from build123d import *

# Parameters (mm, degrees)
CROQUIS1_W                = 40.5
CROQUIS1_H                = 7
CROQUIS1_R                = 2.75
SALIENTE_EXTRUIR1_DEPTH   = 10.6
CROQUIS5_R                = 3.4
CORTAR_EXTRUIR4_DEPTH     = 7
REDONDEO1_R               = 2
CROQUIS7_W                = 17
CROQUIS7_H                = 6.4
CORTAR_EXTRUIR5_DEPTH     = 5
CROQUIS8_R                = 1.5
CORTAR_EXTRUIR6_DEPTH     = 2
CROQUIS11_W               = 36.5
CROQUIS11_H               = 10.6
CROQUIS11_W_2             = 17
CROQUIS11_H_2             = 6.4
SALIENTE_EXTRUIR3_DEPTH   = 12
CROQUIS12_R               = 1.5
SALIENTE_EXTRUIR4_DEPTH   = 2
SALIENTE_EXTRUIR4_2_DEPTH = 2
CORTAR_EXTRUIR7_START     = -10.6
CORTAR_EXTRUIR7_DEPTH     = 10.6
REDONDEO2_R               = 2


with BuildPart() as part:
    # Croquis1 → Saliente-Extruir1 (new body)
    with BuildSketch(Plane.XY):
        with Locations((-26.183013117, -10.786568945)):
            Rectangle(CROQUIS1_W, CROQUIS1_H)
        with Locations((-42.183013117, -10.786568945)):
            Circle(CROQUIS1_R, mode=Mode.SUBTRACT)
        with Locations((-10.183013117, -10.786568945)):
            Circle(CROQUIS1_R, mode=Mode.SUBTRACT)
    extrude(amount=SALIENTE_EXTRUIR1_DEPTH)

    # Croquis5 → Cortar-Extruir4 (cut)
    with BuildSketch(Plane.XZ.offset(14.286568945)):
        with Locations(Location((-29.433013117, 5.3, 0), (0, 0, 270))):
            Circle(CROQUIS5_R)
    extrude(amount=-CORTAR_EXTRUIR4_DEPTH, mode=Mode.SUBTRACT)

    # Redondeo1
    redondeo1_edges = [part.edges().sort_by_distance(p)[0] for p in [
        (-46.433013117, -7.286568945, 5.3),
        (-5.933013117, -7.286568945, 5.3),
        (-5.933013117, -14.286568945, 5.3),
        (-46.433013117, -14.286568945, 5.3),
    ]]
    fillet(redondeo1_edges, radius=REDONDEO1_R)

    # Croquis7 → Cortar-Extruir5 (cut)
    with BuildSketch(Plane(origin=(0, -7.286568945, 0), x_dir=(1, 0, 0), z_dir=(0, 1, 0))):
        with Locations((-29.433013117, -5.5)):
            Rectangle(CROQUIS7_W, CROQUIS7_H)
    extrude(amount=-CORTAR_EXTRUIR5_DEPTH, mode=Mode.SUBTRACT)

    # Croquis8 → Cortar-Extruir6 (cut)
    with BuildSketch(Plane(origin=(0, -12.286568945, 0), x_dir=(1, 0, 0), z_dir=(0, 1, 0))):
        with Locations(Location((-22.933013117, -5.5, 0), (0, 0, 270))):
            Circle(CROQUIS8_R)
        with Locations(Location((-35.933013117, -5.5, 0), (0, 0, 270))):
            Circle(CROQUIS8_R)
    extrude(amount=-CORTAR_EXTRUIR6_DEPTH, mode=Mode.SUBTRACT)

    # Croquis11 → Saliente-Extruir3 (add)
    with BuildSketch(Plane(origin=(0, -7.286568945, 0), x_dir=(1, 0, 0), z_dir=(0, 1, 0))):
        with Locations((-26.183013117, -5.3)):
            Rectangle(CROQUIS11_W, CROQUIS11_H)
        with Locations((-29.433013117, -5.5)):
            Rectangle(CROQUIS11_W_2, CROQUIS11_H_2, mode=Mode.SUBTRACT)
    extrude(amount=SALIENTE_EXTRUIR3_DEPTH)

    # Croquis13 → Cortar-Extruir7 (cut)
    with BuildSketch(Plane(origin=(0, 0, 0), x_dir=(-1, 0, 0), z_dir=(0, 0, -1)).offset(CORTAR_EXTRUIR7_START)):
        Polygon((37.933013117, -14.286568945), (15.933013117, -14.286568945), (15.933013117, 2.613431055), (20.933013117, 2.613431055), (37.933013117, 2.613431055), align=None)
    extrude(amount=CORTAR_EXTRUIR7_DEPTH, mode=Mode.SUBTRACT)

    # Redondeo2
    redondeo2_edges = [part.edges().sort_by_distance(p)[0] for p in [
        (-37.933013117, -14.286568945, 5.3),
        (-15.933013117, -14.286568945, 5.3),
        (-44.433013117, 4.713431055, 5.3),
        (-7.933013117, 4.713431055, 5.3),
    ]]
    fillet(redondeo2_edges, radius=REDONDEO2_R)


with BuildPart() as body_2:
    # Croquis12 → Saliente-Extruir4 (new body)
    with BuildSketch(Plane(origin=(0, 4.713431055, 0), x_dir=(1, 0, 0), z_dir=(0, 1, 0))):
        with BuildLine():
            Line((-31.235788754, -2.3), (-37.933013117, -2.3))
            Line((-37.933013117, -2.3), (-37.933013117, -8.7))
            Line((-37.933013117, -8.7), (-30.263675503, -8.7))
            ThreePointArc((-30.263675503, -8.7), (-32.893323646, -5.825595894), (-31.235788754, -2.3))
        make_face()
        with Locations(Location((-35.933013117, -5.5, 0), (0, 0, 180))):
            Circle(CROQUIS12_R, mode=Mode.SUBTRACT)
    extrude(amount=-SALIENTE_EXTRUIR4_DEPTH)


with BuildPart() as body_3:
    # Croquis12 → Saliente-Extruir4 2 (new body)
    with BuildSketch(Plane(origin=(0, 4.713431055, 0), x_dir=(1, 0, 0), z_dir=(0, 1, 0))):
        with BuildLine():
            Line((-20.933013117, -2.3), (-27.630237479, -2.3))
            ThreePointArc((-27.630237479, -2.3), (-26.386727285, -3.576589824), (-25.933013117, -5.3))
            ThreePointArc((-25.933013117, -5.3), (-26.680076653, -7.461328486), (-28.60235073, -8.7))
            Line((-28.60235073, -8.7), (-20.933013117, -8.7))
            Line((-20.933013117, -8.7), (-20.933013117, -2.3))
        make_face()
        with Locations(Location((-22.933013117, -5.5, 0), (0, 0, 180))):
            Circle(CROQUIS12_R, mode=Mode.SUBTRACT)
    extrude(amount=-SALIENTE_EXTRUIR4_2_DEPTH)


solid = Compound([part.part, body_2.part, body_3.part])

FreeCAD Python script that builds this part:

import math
import FreeCAD as App
import Part
import Sketcher
from FreeCAD import Vector


def edges_at(feature, points):
    """Names of the edges that pass closest to the given points."""
    edges = feature.Shape.Edges
    near = lambda p: min(range(len(edges)), key=lambda i: edges[i].distToShape(Part.Vertex(*p))[0])
    return sorted({f"Edge{near(p) + 1}" for p in points})

doc = App.newDocument("Part")
body = doc.addObject("PartDesign::Body", "Body")

# Sketch on XY plane
sketch1 = body.newObject("Sketcher::SketchObject", "Sketch")
sketch1.AttachmentSupport = (doc.getObject("XY_Plane"), [""])
sketch1.MapMode = "FlatFace"
sketch1.addGeometry(Part.LineSegment(Vector(-46.4, -7.3, 0), Vector(-46.4, -14.3, 0)), False)
sketch1.addGeometry(Part.LineSegment(Vector(-46.4, -14.3, 0), Vector(-5.9, -14.3, 0)), False)
sketch1.addGeometry(Part.LineSegment(Vector(-5.9, -14.3, 0), Vector(-5.9, -7.3, 0)), False)
sketch1.addGeometry(Part.LineSegment(Vector(-5.9, -7.3, 0), Vector(-46.4, -7.3, 0)), False)
sketch1.addGeometry(Part.Circle(Vector(-42.2, -10.8, 0), Vector(0, 0, 1), 2.8), False)
sketch1.addGeometry(Part.Circle(Vector(-10.2, -10.8, 0), Vector(0, 0, 1), 2.8), False)
sketch1.addConstraint(Sketcher.Constraint("Coincident", 0, 2, 1, 1))
sketch1.addConstraint(Sketcher.Constraint("Coincident", 1, 2, 2, 1))
sketch1.addConstraint(Sketcher.Constraint("Coincident", 2, 2, 3, 1))
sketch1.addConstraint(Sketcher.Constraint("Coincident", 3, 2, 0, 1))
sketch1.addConstraint(Sketcher.Constraint("Vertical", 0))
sketch1.addConstraint(Sketcher.Constraint("Horizontal", 1))
sketch1.addConstraint(Sketcher.Constraint("Vertical", 2))
sketch1.addConstraint(Sketcher.Constraint("Horizontal", 3))
sketch1.addConstraint(Sketcher.Constraint("Equal", 4, 5))
sketch1.addConstraint(Sketcher.Constraint("Horizontal", 4, 3, 5, 3))
sketch1.addConstraint(Sketcher.Constraint("Diameter", 4, 5.5))
sketch1.addConstraint(Sketcher.Constraint("DistanceY", 0, 2, 0, 1, 7.0))
sketch1.addConstraint(Sketcher.Constraint("DistanceX", 1, 1, 1, 2, 40.5))
sketch1.addConstraint(Sketcher.Constraint("DistanceX", 4, 3, 5, 3, 32.0))
sketch1.addConstraint(Sketcher.Constraint("DistanceY", 0, 2, 4, 3, 3.5))
sketch1.addConstraint(Sketcher.Constraint("DistanceX", 0, 2, 4, 3, 4.25))
sketch1.addConstraint(Sketcher.Constraint("DistanceY", 4, 3, -1, 1, 10.786569))
sketch1.addConstraint(Sketcher.Constraint("DistanceX", 4, 3, -1, 1, 42.183013))
pad1 = body.newObject("PartDesign::Pad", "Pad")
pad1.Profile = sketch1
pad1.Length = 10.6

# Sketch on XZ plane
sketch2 = body.newObject("Sketcher::SketchObject", "Sketch001")
sketch2.AttachmentSupport = (doc.getObject("XZ_Plane"), [""])
sketch2.MapMode = "FlatFace"
sketch2.AttachmentOffset = App.Placement(Vector(0, 0, 14.286569), App.Rotation())
sketch2.addGeometry(Part.Circle(Vector(-29.4, 5.3, 0), Vector(0, 0, 1), 3.4), False)
sketch2.addConstraint(Sketcher.Constraint("Diameter", 0, 6.8))
sketch2.addConstraint(Sketcher.Constraint("DistanceY", -1, 1, 0, 3, 5.3))
sketch2.addConstraint(Sketcher.Constraint("DistanceX", 0, 3, -1, 1, 29.433013))
pocket1 = body.newObject("PartDesign::Pocket", "Pocket")
pocket1.Profile = sketch2
pocket1.Length = 7
doc.recompute()

fillet = body.newObject("PartDesign::Fillet", "Fillet")
fillet.Base = (pocket1, edges_at(pocket1, [
    (-46.433, -7.287, 5.3),
    (-5.933, -7.287, 5.3),
    (-5.933, -14.287, 5.3),
    (-46.433, -14.287, 5.3),
]))
fillet.Radius = 2

# Sketch on XZ plane
sketch3 = body.newObject("Sketcher::SketchObject", "Sketch002")
sketch3.AttachmentSupport = (doc.getObject("XZ_Plane"), [""])
sketch3.MapMode = "FlatFace"
sketch3.AttachmentOffset = App.Placement(Vector(0, 0, 7.286569), App.Rotation())
sketch3.addGeometry(Part.LineSegment(Vector(-38, 2, 0), Vector(-38, 9, 0)), False)
sketch3.addGeometry(Part.LineSegment(Vector(-38, 9, 0), Vector(-21, 9, 0)), False)
sketch3.addGeometry(Part.LineSegment(Vector(-21, 9, 0), Vector(-21, 2, 0)), False)
sketch3.addGeometry(Part.LineSegment(Vector(-21, 2, 0), Vector(-38, 2, 0)), False)
sketch3.addConstraint(Sketcher.Constraint("Coincident", 0, 2, 1, 1))
sketch3.addConstraint(Sketcher.Constraint("Coincident", 1, 2, 2, 1))
sketch3.addConstraint(Sketcher.Constraint("Coincident", 2, 2, 3, 1))
sketch3.addConstraint(Sketcher.Constraint("Coincident", 3, 2, 0, 1))
sketch3.addConstraint(Sketcher.Constraint("Vertical", 0))
sketch3.addConstraint(Sketcher.Constraint("Horizontal", 1))
sketch3.addConstraint(Sketcher.Constraint("Vertical", 2))
sketch3.addConstraint(Sketcher.Constraint("Horizontal", 3))
sketch3.addConstraint(Sketcher.Constraint("DistanceX", 1, 1, 1, 2, 17.0))
sketch3.addConstraint(Sketcher.Constraint("DistanceY", 0, 1, 0, 2, 6.4))
sketch3.addConstraint(Sketcher.Constraint("DistanceY", -1, 1, 0, 2, 8.7))
sketch3.addConstraint(Sketcher.Constraint("DistanceX", 0, 2, -1, 1, 37.933013))
pocket2 = body.newObject("PartDesign::Pocket", "Pocket001")
pocket2.Profile = sketch3
pocket2.Length = 5
pocket2.Reversed = True

# Sketch on XZ plane
sketch4 = body.newObject("Sketcher::SketchObject", "Sketch003")
sketch4.AttachmentSupport = (doc.getObject("XZ_Plane"), [""])
sketch4.MapMode = "FlatFace"
sketch4.AttachmentOffset = App.Placement(Vector(0, 0, 12.286569), App.Rotation())
sketch4.addGeometry(Part.Circle(Vector(-22.9, 5.5, 0), Vector(0, 0, 1), 1.5), False)
sketch4.addGeometry(Part.Circle(Vector(-35.9, 5.5, 0), Vector(0, 0, 1), 1.5), False)
sketch4.addConstraint(Sketcher.Constraint("Equal", 0, 1))
sketch4.addConstraint(Sketcher.Constraint("Horizontal", 0, 3, 1, 3))
sketch4.addConstraint(Sketcher.Constraint("Diameter", 0, 3.0))
sketch4.addConstraint(Sketcher.Constraint("DistanceX", 1, 3, 0, 3, 13.0))
sketch4.addConstraint(Sketcher.Constraint("DistanceY", -1, 1, 0, 3, 5.5))
sketch4.addConstraint(Sketcher.Constraint("DistanceX", 0, 3, -1, 1, 22.933013))
pocket3 = body.newObject("PartDesign::Pocket", "Pocket002")
pocket3.Profile = sketch4
pocket3.Length = 2
pocket3.Reversed = True

# Sketch on XZ plane
sketch5 = body.newObject("Sketcher::SketchObject", "Sketch004")
sketch5.AttachmentSupport = (doc.getObject("XZ_Plane"), [""])
sketch5.MapMode = "FlatFace"
sketch5.AttachmentOffset = App.Placement(Vector(0, 0, 7.286569), App.Rotation())
sketch5.addGeometry(Part.LineSegment(Vector(-44, 0, 0), Vector(-44, 11, 0)), False)
sketch5.addGeometry(Part.LineSegment(Vector(-44, 11, 0), Vector(-8, 11, 0)), False)
sketch5.addGeometry(Part.LineSegment(Vector(-8, 11, 0), Vector(-8, 0, 0)), False)
sketch5.addGeometry(Part.LineSegment(Vector(-8, 0, 0), Vector(-44, 0, 0)), False)
sketch5.addGeometry(Part.LineSegment(Vector(-21, 9, 0), Vector(-38, 9, 0)), False)
sketch5.addGeometry(Part.LineSegment(Vector(-38, 9, 0), Vector(-38, 2, 0)), False)
sketch5.addGeometry(Part.LineSegment(Vector(-38, 2, 0), Vector(-21, 2, 0)), False)
sketch5.addGeometry(Part.LineSegment(Vector(-21, 2, 0), Vector(-21, 9, 0)), False)
sketch5.addConstraint(Sketcher.Constraint("Coincident", 0, 2, 1, 1))
sketch5.addConstraint(Sketcher.Constraint("Coincident", 1, 2, 2, 1))
sketch5.addConstraint(Sketcher.Constraint("Coincident", 2, 2, 3, 1))
sketch5.addConstraint(Sketcher.Constraint("Coincident", 3, 2, 0, 1))
sketch5.addConstraint(Sketcher.Constraint("Coincident", 4, 2, 5, 1))
sketch5.addConstraint(Sketcher.Constraint("Coincident", 5, 2, 6, 1))
sketch5.addConstraint(Sketcher.Constraint("Coincident", 6, 2, 7, 1))
sketch5.addConstraint(Sketcher.Constraint("Coincident", 7, 2, 4, 1))
sketch5.addConstraint(Sketcher.Constraint("Vertical", 0))
sketch5.addConstraint(Sketcher.Constraint("Horizontal", 1))
sketch5.addConstraint(Sketcher.Constraint("Vertical", 2))
sketch5.addConstraint(Sketcher.Constraint("Horizontal", 3))
sketch5.addConstraint(Sketcher.Constraint("Horizontal", 4))
sketch5.addConstraint(Sketcher.Constraint("Vertical", 5))
sketch5.addConstraint(Sketcher.Constraint("Horizontal", 6))
sketch5.addConstraint(Sketcher.Constraint("Vertical", 7))
sketch5.addConstraint(Sketcher.Constraint("PointOnObject", 2, 2, -1))
sketch5.addConstraint(Sketcher.Constraint("DistanceX", 4, 2, 4, 1, 17.0))
sketch5.addConstraint(Sketcher.Constraint("DistanceX", 1, 1, 1, 2, 36.5))
sketch5.addConstraint(Sketcher.Constraint("DistanceY", 0, 1, 0, 2, 10.6))
sketch5.addConstraint(Sketcher.Constraint("DistanceY", 5, 2, 5, 1, 6.4))
sketch5.addConstraint(Sketcher.Constraint("DistanceX", 4, 2, 1, 2, 30.0))
sketch5.addConstraint(Sketcher.Constraint("DistanceY", -1, 1, 4, 2, 8.7))
sketch5.addConstraint(Sketcher.Constraint("DistanceX", 0, 2, -1, 1, 44.433013))
pad2 = body.newObject("PartDesign::Pad", "Pad001")
pad2.Profile = sketch5
pad2.Length = 12
pad2.Reversed = True

# Sketch on XY plane
sketch6 = body.newObject("Sketcher::SketchObject", "Sketch005")
sketch6.AttachmentSupport = (doc.getObject("XY_Plane"), [""])
sketch6.MapMode = "FlatFace"
sketch6.AttachmentOffset = App.Placement(Vector(0, 0, 10.6), App.Rotation())
sketch6.addGeometry(Part.LineSegment(Vector(-16, -14, 0), Vector(-38, -14, 0)), False)
sketch6.addGeometry(Part.LineSegment(Vector(-38, -14, 0), Vector(-38, 3, 0)), False)
sketch6.addGeometry(Part.LineSegment(Vector(-38, 3, 0), Vector(-16, 3, 0)), False)
sketch6.addGeometry(Part.LineSegment(Vector(-16, 3, 0), Vector(-16, -14, 0)), False)
sketch6.addConstraint(Sketcher.Constraint("Coincident", 0, 2, 1, 1))
sketch6.addConstraint(Sketcher.Constraint("Coincident", 1, 2, 2, 1))
sketch6.addConstraint(Sketcher.Constraint("Coincident", 2, 2, 3, 1))
sketch6.addConstraint(Sketcher.Constraint("Coincident", 3, 2, 0, 1))
sketch6.addConstraint(Sketcher.Constraint("Horizontal", 0))
sketch6.addConstraint(Sketcher.Constraint("Vertical", 1))
sketch6.addConstraint(Sketcher.Constraint("Horizontal", 2))
sketch6.addConstraint(Sketcher.Constraint("Vertical", 3))
sketch6.addConstraint(Sketcher.Constraint("DistanceX", 0, 2, 0, 1, 22.0))
sketch6.addConstraint(Sketcher.Constraint("DistanceY", 1, 1, 1, 2, 16.9))
sketch6.addConstraint(Sketcher.Constraint("DistanceY", 0, 2, -1, 1, 14.286569))
sketch6.addConstraint(Sketcher.Constraint("DistanceX", 0, 2, -1, 1, 37.933013))
pocket4 = body.newObject("PartDesign::Pocket", "Pocket003")
pocket4.Profile = sketch6
pocket4.Length = 10.6
doc.recompute()

fillet2 = body.newObject("PartDesign::Fillet", "Fillet001")
fillet2.Base = (pocket4, edges_at(pocket4, [
    (-37.933, -14.287, 5.3),
    (-15.933, -14.287, 5.3),
    (-44.433, 4.713, 5.3),
    (-7.933, 4.713, 5.3),
]))
fillet2.Radius = 2
body2 = doc.addObject("PartDesign::Body", "Body001")

# Sketch on XZ plane
sketch7 = body2.newObject("Sketcher::SketchObject", "Sketch006")
sketch7.AttachmentSupport = (doc.getObject("XZ_Plane001"), [""])
sketch7.MapMode = "FlatFace"
sketch7.AttachmentOffset = App.Placement(Vector(0, 0, -4.713431), App.Rotation())
sketch7.addGeometry(Part.LineSegment(Vector(-31.2, 2.3, 0), Vector(-37.9, 2.3, 0)), False)
sketch7.addGeometry(Part.LineSegment(Vector(-37.9, 2.3, 0), Vector(-37.9, 8.7, 0)), False)
sketch7.addGeometry(Part.LineSegment(Vector(-37.9, 8.7, 0), Vector(-30.3, 8.7, 0)), False)
sketch7.addGeometry(Part.ArcOfCircle(Part.Circle(Vector(-29.4, 5.3, 0), Vector(0, 0, 1), 3.5), math.radians(104), math.radians(239)), False)
sketch7.addGeometry(Part.Circle(Vector(-35.9, 5.5, 0), Vector(0, 0, 1), 1.5), False)
sketch7.addConstraint(Sketcher.Constraint("Coincident", 0, 2, 1, 1))
sketch7.addConstraint(Sketcher.Constraint("Coincident", 1, 2, 2, 1))
sketch7.addConstraint(Sketcher.Constraint("Coincident", 2, 2, 3, 1))
sketch7.addConstraint(Sketcher.Constraint("Coincident", 3, 2, 0, 1))
sketch7.addConstraint(Sketcher.Constraint("Horizontal", 0))
sketch7.addConstraint(Sketcher.Constraint("Vertical", 1))
sketch7.addConstraint(Sketcher.Constraint("Horizontal", 2))
sketch7.addConstraint(Sketcher.Constraint("Diameter", 4, 3.0))
sketch7.addConstraint(Sketcher.Constraint("Radius", 3, 3.5))
sketch7.addConstraint(Sketcher.Constraint("DistanceY", 1, 1, 1, 2, 6.4))
sketch7.addConstraint(Sketcher.Constraint("DistanceX", 0, 2, 4, 3, 2.0))
sketch7.addConstraint(Sketcher.Constraint("DistanceY", 0, 2, 3, 3, 3.0))
sketch7.addConstraint(Sketcher.Constraint("DistanceY", -1, 1, 3, 3, 5.3))
sketch7.addConstraint(Sketcher.Constraint("DistanceY", -1, 1, 4, 3, 5.5))
sketch7.addConstraint(Sketcher.Constraint("DistanceX", 4, 3, 3, 3, 6.5))
sketch7.addConstraint(Sketcher.Constraint("DistanceX", 3, 2, -1, 1, 31.235789))
pad3 = body2.newObject("PartDesign::Pad", "Pad002")
pad3.Profile = sketch7
pad3.Length = 2
body3 = doc.addObject("PartDesign::Body", "Body002")

# Sketch on XZ plane
sketch8 = body3.newObject("Sketcher::SketchObject", "Sketch007")
sketch8.AttachmentSupport = (doc.getObject("XZ_Plane002"), [""])
sketch8.MapMode = "FlatFace"
sketch8.AttachmentOffset = App.Placement(Vector(0, 0, -4.713431), App.Rotation())
sketch8.addGeometry(Part.LineSegment(Vector(-20.9, 2.3, 0), Vector(-27.6, 2.3, 0)), False)
sketch8.addGeometry(Part.ArcOfCircle(Part.Circle(Vector(-29.4, 5.3, 0), Vector(0, 0, 1), 3.5), math.radians(-59), math.radians(0)), False)
sketch8.addGeometry(Part.ArcOfCircle(Part.Circle(Vector(-29.4, 5.3, 0), Vector(0, 0, 1), 3.5), math.radians(0), math.radians(76)), False)
sketch8.addGeometry(Part.LineSegment(Vector(-28.6, 8.7, 0), Vector(-20.9, 8.7, 0)), False)
sketch8.addGeometry(Part.LineSegment(Vector(-20.9, 8.7, 0), Vector(-20.9, 2.3, 0)), False)
sketch8.addGeometry(Part.Circle(Vector(-22.9, 5.5, 0), Vector(0, 0, 1), 1.5), False)
sketch8.addConstraint(Sketcher.Constraint("Coincident", 0, 2, 1, 1))
sketch8.addConstraint(Sketcher.Constraint("Tangent", 1, 2, 2, 1))
sketch8.addConstraint(Sketcher.Constraint("Coincident", 2, 2, 3, 1))
sketch8.addConstraint(Sketcher.Constraint("Coincident", 3, 2, 4, 1))
sketch8.addConstraint(Sketcher.Constraint("Coincident", 4, 2, 0, 1))
sketch8.addConstraint(Sketcher.Constraint("Horizontal", 0))
sketch8.addConstraint(Sketcher.Constraint("Horizontal", 3))
sketch8.addConstraint(Sketcher.Constraint("Vertical", 4))
sketch8.addConstraint(Sketcher.Constraint("Equal", 1, 2))
sketch8.addConstraint(Sketcher.Constraint("Horizontal", 2, 3, 1, 2))
sketch8.addConstraint(Sketcher.Constraint("Diameter", 5, 3.0))
sketch8.addConstraint(Sketcher.Constraint("Radius", 1, 3.5))
sketch8.addConstraint(Sketcher.Constraint("DistanceY", 4, 2, 4, 1, 6.4))
sketch8.addConstraint(Sketcher.Constraint("DistanceY", 0, 2, 1, 3, 3.0))
sketch8.addConstraint(Sketcher.Constraint("DistanceX", 1, 2, 5, 3, 3.0))
sketch8.addConstraint(Sketcher.Constraint("DistanceX", 5, 3, 3, 2, 2.0))
sketch8.addConstraint(Sketcher.Constraint("DistanceY", -1, 1, 1, 3, 5.3))
sketch8.addConstraint(Sketcher.Constraint("DistanceY", -1, 1, 5, 3, 5.5))
sketch8.addConstraint(Sketcher.Constraint("DistanceX", 2, 2, -1, 1, 28.602351))
pad4 = body3.newObject("PartDesign::Pad", "Pad003")
pad4.Profile = sketch8
pad4.Length = 2

doc.recompute()
